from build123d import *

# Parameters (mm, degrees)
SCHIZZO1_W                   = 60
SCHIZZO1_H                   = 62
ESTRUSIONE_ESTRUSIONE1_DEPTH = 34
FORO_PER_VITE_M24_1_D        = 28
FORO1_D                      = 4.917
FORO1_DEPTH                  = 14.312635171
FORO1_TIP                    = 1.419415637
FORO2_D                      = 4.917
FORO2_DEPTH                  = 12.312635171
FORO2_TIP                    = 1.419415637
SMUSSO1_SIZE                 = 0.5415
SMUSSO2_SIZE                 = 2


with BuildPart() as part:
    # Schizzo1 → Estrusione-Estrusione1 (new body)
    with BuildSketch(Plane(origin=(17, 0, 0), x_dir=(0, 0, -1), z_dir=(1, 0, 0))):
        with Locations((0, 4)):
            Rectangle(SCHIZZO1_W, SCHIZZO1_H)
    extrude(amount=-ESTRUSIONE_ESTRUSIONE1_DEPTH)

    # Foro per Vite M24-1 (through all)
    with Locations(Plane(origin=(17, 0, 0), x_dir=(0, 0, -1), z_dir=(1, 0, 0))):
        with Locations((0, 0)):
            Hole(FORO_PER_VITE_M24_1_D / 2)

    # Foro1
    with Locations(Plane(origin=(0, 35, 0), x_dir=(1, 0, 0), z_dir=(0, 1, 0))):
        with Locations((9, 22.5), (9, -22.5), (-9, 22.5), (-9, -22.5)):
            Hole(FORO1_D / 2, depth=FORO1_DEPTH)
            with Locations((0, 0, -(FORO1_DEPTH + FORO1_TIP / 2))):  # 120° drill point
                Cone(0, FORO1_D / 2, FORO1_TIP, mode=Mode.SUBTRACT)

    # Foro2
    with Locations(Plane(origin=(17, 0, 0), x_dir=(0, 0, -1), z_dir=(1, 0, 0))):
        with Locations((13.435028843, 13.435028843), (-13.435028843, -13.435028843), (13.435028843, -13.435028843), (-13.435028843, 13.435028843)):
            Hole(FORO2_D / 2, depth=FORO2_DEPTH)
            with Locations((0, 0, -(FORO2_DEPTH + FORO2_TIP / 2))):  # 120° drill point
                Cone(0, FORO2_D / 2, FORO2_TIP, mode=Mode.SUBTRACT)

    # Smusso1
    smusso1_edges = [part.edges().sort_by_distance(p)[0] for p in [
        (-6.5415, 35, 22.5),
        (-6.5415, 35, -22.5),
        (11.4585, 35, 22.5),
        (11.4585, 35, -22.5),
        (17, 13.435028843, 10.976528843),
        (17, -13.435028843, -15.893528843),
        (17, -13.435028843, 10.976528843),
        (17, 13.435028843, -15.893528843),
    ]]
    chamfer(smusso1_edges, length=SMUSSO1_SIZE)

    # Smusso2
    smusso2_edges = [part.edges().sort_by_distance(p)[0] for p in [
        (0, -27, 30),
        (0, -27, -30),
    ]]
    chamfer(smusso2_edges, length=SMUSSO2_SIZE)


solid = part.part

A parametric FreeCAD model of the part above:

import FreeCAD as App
import Part
import Sketcher

V = App.Vector
Q = App.Units.Quantity


def edges_at(feature, points):
    """Names of the edges that pass closest to the given points."""
    edges = feature.Shape.Edges
    near = lambda p: min(range(len(edges)), key=lambda i: edges[i].distToShape(Part.Vertex(*p))[0])
    return sorted({f"Edge{near(p) + 1}" for p in points})

doc = App.newDocument("Part")
params = doc.addObject("Spreadsheet::Sheet", "Params")
for row, (alias, value) in enumerate([
    ("sketch1_width", "62 mm"),
    ("sketch1_height", "60 mm"),
    ("pad1_length", "34 mm"),
    ("sketch2_diameter", "28 mm"),
    ("hole_diameter", "28 mm"),
    ("hole2_diameter", "4.917 mm"),
    ("hole2_depth", "14.312635 mm"),
    ("hole3_diameter", "4.917 mm"),
    ("hole3_depth", "12.312635 mm"),
    ("chamfer_size", "0.5415 mm"),
    ("chamfer2_size", "2 mm"),
], start=1):
    params.set(f"A{row}", alias)
    params.set(f"B{row}", "=" + value)
    params.setAlias(f"B{row}", alias)

body = doc.addObject("PartDesign::Body", "Body")

# Sketch on YZ plane
sketch1 = body.newObject("Sketcher::SketchObject", "Sketch")
sketch1.AttachmentSupport = (doc.getObject("YZ_Plane"), [""])
sketch1.MapMode = "FlatFace"
sketch1.AttachmentOffset = App.Placement(V(0, 0, 17), App.Rotation())
sketch1.addGeometry([
    Part.LineSegment(V(35, 30, 0), V(-27, 30, 0)),
    Part.LineSegment(V(-27, 30, 0), V(-27, -30, 0)),
    Part.LineSegment(V(-27, -30, 0), V(35, -30, 0)),
    Part.LineSegment(V(35, -30, 0), V(35, 30, 0)),
], False)
sketch1.addConstraint([
    Sketcher.Constraint("Coincident", 0, 2, 1, 1),
    Sketcher.Constraint("Coincident", 1, 2, 2, 1),
    Sketcher.Constraint("Coincident", 2, 2, 3, 1),
    Sketcher.Constraint("Coincident", 3, 2, 0, 1),
    Sketcher.Constraint("Horizontal", 0),
    Sketcher.Constraint("Vertical", 1),
    Sketcher.Constraint("Horizontal", 2),
    Sketcher.Constraint("Vertical", 3),
    Sketcher.Constraint("DistanceX", 0, 2, 0, 1, Q("62 mm")),
    Sketcher.Constraint("DistanceY", 1, 2, 1, 1, Q("60 mm")),
    Sketcher.Constraint("DistanceX", 0, 2, -1, 1, Q("27 mm")),
    Sketcher.Constraint("DistanceY", -1, 1, 0, 2, Q("30 mm")),
])
sketch1.setExpression("Constraints[8]", "Params.sketch1_width")
sketch1.setExpression("Constraints[9]", "Params.sketch1_height")
pad1 = body.newObject("PartDesign::Pad", "Pad")
pad1.Profile = sketch1
pad1.setExpression("Length", "Params.pad1_length")
pad1.Reversed = True

# Sketch on YZ plane
sketch2 = body.newObject("Sketcher::SketchObject", "Sketch001")
sketch2.AttachmentSupport = (doc.getObject("YZ_Plane"), [""])
sketch2.MapMode = "FlatFace"
sketch2.AttachmentOffset = App.Placement(V(0, 0, 17), App.Rotation())
sketch2.addGeometry(Part.Circle(V(0, 0, 0), V(0, 0, 1), 14), False)
sketch2.addConstraint([
    Sketcher.Constraint("Coincident", 0, 3, -1, 1),
    Sketcher.Constraint("Diameter", 0, Q("28 mm")),
])
sketch2.setExpression("Constraints[1]", "Params.sketch2_diameter")
doc.recompute()
hole = body.newObject("PartDesign::Hole", "Hole")
hole.Profile = sketch2
hole.ThreadType = "None"
hole.setExpression("Diameter", "Params.hole_diameter")
hole.DepthType = "ThroughAll"

# Sketch on XZ plane
sketch3 = body.newObject("Sketcher::SketchObject", "Sketch002")
sketch3.AttachmentSupport = (doc.getObject("XZ_Plane"), [""])
sketch3.MapMode = "FlatFace"
sketch3.AttachmentOffset = App.Placement(V(0, 0, -35), App.Rotation())
sketch3.addGeometry([
    Part.Circle(V(9, -22.5, 0), V(0, 0, 1), 2.5),
    Part.Circle(V(9, 22.5, 0), V(0, 0, 1), 2.5),
    Part.Circle(V(-9, -22.5, 0), V(0, 0, 1), 2.5),
    Part.Circle(V(-9, 22.5, 0), V(0, 0, 1), 2.5),
], False)
sketch3.addConstraint([
    Sketcher.Constraint("Equal", 0, 1),
    Sketcher.Constraint("Equal", 1, 2),
    Sketcher.Constraint("Equal", 2, 3),
    Sketcher.Constraint("Symmetric", 1, 3, 2, 3, -1, 1),
    Sketcher.Constraint("Symmetric", 0, 3, 3, 3, -1, 1),
    Sketcher.Constraint("Symmetric", 0, 3, 2, 3, -2),
    Sketcher.Constraint("Diameter", 0, Q("4.917 mm")),
    Sketcher.Constraint("DistanceX", -1, 1, 0, 3, Q("9 mm")),
    Sketcher.Constraint("DistanceY", 0, 3, 1, 3, Q("45 mm")),
])
doc.recompute()
hole2 = body.newObject("PartDesign::Hole", "Hole001")
hole2.Profile = sketch3
hole2.ThreadType = "None"
hole2.setExpression("Diameter", "Params.hole2_diameter")
hole2.DepthType = "Dimension"
hole2.setExpression("Depth", "Params.hole2_depth")
hole2.DrillPoint = "Angled"
hole2.DrillPointAngle = 120
hole2.Reversed = True

# Sketch on YZ plane
sketch4 = body.newObject("Sketcher::SketchObject", "Sketch003")
sketch4.AttachmentSupport = (doc.getObject("YZ_Plane"), [""])
sketch4.MapMode = "FlatFace"
sketch4.AttachmentOffset = App.Placement(V(0, 0, 17), App.Rotation())
sketch4.addGeometry([
    Part.Circle(V(13.4, -13.4, 0), V(0, 0, 1), 2.5),
    Part.Circle(V(-13.4, 13.4, 0), V(0, 0, 1), 2.5),
    Part.Circle(V(-13.4, -13.4, 0), V(0, 0, 1), 2.5),
    Part.Circle(V(13.4, 13.4, 0), V(0, 0, 1), 2.5),
], False)
sketch4.addConstraint([
    Sketcher.Constraint("Equal", 0, 1),
    Sketcher.Constraint("Equal", 1, 2),
    Sketcher.Constraint("Equal", 2, 3),
    Sketcher.Constraint("Symmetric", 0, 3, 1, 3, -1, 1),
    Sketcher.Constraint("Symmetric", 2, 3, 3, 3, -1, 1),
    Sketcher.Constraint("Symmetric", 0, 3, 2, 3, -2),
    Sketcher.Constraint("Diameter", 0, Q("4.917 mm")),
    Sketcher.Constraint("DistanceX", -1, 1, 0, 3, Q("13.435029 mm")),
    Sketcher.Constraint("DistanceY", 0, 3, -1, 1, Q("13.435029 mm")),
])
doc.recompute()
hole3 = body.newObject("PartDesign::Hole", "Hole002")
hole3.Profile = sketch4
hole3.ThreadType = "None"
hole3.setExpression("Diameter", "Params.hole3_diameter")
hole3.DepthType = "Dimension"
hole3.setExpression("Depth", "Params.hole3_depth")
hole3.DrillPoint = "Angled"
hole3.DrillPointAngle = 120
doc.recompute()

chamfer = body.newObject("PartDesign::Chamfer", "Chamfer")
chamfer.Base = (hole3, edges_at(hole3, [
    (-6.542, 35, 22.5),
    (-6.542, 35, -22.5),
    (11.459, 35, 22.5),
    (11.459, 35, -22.5),
    (17, 13.435, 10.977),
    (17, -13.435, -15.894),
    (17, -13.435, 10.977),
    (17, 13.435, -15.894),
]))
chamfer.setExpression("Size", "Params.chamfer_size")
doc.recompute()

chamfer2 = body.newObject("PartDesign::Chamfer", "Chamfer001")
chamfer2.Base = (chamfer, edges_at(chamfer, [(0, -27, 30), (0, -27, -30)]))
chamfer2.setExpression("Size", "Params.chamfer2_size")

doc.recompute()
